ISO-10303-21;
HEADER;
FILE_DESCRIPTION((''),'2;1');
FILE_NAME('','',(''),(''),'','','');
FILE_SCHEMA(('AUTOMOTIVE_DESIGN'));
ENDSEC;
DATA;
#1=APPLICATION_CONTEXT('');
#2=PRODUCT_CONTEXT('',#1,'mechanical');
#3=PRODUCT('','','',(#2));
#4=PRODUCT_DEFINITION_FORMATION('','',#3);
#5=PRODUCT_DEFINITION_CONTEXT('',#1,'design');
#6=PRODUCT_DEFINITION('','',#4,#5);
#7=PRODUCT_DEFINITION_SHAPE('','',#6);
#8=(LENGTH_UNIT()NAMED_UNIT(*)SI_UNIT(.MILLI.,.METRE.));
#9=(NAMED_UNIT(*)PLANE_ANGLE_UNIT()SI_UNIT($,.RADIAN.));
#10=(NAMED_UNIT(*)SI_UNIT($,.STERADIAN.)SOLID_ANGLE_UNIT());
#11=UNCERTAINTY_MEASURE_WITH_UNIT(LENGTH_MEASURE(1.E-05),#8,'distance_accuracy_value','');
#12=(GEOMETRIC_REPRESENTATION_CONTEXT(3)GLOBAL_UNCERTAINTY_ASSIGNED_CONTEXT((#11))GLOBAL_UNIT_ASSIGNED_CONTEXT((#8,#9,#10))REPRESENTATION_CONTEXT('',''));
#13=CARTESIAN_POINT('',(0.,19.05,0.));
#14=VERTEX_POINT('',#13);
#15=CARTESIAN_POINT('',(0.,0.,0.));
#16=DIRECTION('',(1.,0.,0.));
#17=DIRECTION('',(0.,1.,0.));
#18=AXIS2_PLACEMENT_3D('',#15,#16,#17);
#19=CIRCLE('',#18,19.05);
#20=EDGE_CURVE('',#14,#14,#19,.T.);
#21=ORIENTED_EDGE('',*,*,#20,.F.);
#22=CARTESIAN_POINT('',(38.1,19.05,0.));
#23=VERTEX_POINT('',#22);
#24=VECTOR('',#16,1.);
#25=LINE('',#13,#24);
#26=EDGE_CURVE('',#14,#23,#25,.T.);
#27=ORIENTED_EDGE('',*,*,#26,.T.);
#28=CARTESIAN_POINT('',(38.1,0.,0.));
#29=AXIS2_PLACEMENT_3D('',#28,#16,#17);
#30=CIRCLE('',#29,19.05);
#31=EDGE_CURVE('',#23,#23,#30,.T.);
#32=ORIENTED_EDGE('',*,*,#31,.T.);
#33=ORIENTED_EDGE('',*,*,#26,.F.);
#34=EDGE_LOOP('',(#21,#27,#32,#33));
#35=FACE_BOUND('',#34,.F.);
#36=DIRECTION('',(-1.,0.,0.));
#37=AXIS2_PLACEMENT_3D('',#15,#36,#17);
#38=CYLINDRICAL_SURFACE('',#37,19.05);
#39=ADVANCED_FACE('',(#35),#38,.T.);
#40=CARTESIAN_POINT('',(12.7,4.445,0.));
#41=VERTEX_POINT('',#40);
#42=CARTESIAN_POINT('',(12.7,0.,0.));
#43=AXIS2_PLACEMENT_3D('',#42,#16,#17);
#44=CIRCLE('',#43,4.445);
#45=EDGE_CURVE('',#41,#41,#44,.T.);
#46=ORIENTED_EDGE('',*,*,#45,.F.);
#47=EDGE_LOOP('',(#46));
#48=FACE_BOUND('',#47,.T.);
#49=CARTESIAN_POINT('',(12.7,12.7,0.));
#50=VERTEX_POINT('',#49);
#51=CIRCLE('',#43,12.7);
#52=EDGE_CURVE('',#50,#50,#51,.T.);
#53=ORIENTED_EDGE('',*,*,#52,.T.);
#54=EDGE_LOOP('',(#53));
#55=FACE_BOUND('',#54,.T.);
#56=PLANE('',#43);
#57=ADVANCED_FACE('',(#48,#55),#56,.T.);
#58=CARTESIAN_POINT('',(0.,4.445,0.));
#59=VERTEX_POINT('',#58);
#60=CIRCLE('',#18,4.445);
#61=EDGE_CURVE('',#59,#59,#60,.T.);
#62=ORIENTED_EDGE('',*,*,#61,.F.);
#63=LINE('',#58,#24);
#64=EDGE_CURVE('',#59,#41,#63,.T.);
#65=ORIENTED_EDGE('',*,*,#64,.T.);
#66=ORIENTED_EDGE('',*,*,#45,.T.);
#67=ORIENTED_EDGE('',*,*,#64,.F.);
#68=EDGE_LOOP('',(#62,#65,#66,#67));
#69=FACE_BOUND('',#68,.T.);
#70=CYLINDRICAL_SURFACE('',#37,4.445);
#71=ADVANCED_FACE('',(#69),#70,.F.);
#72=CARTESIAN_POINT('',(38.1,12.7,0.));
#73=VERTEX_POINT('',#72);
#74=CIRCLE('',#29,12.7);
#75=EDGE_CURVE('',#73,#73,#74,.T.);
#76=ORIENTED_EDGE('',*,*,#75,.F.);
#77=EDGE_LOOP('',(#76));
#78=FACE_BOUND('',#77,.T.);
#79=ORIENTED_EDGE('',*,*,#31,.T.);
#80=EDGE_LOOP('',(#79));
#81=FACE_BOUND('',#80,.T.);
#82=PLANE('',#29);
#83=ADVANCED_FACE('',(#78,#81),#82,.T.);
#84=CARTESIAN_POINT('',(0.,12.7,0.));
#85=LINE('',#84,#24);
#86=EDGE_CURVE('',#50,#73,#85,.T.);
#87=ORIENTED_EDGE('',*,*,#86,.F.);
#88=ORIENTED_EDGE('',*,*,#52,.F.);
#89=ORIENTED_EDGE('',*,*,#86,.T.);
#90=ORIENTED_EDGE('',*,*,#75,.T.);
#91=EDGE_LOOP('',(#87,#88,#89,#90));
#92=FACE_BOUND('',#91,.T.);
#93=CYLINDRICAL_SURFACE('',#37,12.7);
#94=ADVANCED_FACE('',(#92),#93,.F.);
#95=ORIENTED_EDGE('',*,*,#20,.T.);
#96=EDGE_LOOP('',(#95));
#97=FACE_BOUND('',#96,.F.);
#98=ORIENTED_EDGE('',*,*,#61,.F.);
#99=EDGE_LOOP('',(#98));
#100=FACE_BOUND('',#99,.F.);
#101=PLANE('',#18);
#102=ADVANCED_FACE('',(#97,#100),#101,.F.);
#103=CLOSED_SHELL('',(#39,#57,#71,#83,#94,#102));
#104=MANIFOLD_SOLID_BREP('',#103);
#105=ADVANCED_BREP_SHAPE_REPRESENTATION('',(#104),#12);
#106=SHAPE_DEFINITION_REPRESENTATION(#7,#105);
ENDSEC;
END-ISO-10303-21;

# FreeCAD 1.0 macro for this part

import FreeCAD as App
import Part
import Sketcher
Q = App.Units.Quantity

doc = App.newDocument("Part")
body = doc.addObject("PartDesign::Body", "Body")

# Sketch on YZ plane
sketch1 = body.newObject("Sketcher::SketchObject", "Sketch")
sketch1.AttachmentSupport = (doc.getObject("YZ_Plane"), [""])
sketch1.MapMode = "FlatFace"
sketch1.addGeometry([
    Part.Circle(App.Vector(0, 0, 0), App.Vector(0, 0, 1), 19),
    Part.Circle(App.Vector(0, 0, 0), App.Vector(0, 0, 1), 13),
], False)
sketch1.addConstraint([
    Sketcher.Constraint("Coincident", 0, 3, -1, 1),
    Sketcher.Constraint("Coincident", 1, 3, -1, 1),
    Sketcher.Constraint("Diameter", 1, Q("1 in")),
    Sketcher.Constraint("Diameter", 0, Q("1.5 in")),
])
pad1 = body.newObject("PartDesign::Pad", "Pad")
pad1.Profile = sketch1
pad1.Length = Q("1.5 in")

# Sketch on YZ plane
sketch2 = body.newObject("Sketcher::SketchObject", "Sketch001")
sketch2.AttachmentSupport = (doc.getObject("YZ_Plane"), [""])
sketch2.MapMode = "FlatFace"
sketch2.addGeometry([
    Part.Circle(App.Vector(0, 0, 0), App.Vector(0, 0, 1), 12.7),
    Part.Circle(App.Vector(0, 0, 0), App.Vector(0, 0, 1), 4.4),
], False)
sketch2.addConstraint([
    Sketcher.Constraint("Coincident", 0, 3, -1, 1),
    Sketcher.Constraint("Coincident", 1, 3, -1, 1),
    Sketcher.Constraint("Diameter", 0, Q("1 in")),
    Sketcher.Constraint("Diameter", 1, Q("0.35 in")),
])
pad2 = body.newObject("PartDesign::Pad", "Pad001")
pad2.Profile = sketch2
pad2.Length = Q("0.5 in")

doc.recompute()
